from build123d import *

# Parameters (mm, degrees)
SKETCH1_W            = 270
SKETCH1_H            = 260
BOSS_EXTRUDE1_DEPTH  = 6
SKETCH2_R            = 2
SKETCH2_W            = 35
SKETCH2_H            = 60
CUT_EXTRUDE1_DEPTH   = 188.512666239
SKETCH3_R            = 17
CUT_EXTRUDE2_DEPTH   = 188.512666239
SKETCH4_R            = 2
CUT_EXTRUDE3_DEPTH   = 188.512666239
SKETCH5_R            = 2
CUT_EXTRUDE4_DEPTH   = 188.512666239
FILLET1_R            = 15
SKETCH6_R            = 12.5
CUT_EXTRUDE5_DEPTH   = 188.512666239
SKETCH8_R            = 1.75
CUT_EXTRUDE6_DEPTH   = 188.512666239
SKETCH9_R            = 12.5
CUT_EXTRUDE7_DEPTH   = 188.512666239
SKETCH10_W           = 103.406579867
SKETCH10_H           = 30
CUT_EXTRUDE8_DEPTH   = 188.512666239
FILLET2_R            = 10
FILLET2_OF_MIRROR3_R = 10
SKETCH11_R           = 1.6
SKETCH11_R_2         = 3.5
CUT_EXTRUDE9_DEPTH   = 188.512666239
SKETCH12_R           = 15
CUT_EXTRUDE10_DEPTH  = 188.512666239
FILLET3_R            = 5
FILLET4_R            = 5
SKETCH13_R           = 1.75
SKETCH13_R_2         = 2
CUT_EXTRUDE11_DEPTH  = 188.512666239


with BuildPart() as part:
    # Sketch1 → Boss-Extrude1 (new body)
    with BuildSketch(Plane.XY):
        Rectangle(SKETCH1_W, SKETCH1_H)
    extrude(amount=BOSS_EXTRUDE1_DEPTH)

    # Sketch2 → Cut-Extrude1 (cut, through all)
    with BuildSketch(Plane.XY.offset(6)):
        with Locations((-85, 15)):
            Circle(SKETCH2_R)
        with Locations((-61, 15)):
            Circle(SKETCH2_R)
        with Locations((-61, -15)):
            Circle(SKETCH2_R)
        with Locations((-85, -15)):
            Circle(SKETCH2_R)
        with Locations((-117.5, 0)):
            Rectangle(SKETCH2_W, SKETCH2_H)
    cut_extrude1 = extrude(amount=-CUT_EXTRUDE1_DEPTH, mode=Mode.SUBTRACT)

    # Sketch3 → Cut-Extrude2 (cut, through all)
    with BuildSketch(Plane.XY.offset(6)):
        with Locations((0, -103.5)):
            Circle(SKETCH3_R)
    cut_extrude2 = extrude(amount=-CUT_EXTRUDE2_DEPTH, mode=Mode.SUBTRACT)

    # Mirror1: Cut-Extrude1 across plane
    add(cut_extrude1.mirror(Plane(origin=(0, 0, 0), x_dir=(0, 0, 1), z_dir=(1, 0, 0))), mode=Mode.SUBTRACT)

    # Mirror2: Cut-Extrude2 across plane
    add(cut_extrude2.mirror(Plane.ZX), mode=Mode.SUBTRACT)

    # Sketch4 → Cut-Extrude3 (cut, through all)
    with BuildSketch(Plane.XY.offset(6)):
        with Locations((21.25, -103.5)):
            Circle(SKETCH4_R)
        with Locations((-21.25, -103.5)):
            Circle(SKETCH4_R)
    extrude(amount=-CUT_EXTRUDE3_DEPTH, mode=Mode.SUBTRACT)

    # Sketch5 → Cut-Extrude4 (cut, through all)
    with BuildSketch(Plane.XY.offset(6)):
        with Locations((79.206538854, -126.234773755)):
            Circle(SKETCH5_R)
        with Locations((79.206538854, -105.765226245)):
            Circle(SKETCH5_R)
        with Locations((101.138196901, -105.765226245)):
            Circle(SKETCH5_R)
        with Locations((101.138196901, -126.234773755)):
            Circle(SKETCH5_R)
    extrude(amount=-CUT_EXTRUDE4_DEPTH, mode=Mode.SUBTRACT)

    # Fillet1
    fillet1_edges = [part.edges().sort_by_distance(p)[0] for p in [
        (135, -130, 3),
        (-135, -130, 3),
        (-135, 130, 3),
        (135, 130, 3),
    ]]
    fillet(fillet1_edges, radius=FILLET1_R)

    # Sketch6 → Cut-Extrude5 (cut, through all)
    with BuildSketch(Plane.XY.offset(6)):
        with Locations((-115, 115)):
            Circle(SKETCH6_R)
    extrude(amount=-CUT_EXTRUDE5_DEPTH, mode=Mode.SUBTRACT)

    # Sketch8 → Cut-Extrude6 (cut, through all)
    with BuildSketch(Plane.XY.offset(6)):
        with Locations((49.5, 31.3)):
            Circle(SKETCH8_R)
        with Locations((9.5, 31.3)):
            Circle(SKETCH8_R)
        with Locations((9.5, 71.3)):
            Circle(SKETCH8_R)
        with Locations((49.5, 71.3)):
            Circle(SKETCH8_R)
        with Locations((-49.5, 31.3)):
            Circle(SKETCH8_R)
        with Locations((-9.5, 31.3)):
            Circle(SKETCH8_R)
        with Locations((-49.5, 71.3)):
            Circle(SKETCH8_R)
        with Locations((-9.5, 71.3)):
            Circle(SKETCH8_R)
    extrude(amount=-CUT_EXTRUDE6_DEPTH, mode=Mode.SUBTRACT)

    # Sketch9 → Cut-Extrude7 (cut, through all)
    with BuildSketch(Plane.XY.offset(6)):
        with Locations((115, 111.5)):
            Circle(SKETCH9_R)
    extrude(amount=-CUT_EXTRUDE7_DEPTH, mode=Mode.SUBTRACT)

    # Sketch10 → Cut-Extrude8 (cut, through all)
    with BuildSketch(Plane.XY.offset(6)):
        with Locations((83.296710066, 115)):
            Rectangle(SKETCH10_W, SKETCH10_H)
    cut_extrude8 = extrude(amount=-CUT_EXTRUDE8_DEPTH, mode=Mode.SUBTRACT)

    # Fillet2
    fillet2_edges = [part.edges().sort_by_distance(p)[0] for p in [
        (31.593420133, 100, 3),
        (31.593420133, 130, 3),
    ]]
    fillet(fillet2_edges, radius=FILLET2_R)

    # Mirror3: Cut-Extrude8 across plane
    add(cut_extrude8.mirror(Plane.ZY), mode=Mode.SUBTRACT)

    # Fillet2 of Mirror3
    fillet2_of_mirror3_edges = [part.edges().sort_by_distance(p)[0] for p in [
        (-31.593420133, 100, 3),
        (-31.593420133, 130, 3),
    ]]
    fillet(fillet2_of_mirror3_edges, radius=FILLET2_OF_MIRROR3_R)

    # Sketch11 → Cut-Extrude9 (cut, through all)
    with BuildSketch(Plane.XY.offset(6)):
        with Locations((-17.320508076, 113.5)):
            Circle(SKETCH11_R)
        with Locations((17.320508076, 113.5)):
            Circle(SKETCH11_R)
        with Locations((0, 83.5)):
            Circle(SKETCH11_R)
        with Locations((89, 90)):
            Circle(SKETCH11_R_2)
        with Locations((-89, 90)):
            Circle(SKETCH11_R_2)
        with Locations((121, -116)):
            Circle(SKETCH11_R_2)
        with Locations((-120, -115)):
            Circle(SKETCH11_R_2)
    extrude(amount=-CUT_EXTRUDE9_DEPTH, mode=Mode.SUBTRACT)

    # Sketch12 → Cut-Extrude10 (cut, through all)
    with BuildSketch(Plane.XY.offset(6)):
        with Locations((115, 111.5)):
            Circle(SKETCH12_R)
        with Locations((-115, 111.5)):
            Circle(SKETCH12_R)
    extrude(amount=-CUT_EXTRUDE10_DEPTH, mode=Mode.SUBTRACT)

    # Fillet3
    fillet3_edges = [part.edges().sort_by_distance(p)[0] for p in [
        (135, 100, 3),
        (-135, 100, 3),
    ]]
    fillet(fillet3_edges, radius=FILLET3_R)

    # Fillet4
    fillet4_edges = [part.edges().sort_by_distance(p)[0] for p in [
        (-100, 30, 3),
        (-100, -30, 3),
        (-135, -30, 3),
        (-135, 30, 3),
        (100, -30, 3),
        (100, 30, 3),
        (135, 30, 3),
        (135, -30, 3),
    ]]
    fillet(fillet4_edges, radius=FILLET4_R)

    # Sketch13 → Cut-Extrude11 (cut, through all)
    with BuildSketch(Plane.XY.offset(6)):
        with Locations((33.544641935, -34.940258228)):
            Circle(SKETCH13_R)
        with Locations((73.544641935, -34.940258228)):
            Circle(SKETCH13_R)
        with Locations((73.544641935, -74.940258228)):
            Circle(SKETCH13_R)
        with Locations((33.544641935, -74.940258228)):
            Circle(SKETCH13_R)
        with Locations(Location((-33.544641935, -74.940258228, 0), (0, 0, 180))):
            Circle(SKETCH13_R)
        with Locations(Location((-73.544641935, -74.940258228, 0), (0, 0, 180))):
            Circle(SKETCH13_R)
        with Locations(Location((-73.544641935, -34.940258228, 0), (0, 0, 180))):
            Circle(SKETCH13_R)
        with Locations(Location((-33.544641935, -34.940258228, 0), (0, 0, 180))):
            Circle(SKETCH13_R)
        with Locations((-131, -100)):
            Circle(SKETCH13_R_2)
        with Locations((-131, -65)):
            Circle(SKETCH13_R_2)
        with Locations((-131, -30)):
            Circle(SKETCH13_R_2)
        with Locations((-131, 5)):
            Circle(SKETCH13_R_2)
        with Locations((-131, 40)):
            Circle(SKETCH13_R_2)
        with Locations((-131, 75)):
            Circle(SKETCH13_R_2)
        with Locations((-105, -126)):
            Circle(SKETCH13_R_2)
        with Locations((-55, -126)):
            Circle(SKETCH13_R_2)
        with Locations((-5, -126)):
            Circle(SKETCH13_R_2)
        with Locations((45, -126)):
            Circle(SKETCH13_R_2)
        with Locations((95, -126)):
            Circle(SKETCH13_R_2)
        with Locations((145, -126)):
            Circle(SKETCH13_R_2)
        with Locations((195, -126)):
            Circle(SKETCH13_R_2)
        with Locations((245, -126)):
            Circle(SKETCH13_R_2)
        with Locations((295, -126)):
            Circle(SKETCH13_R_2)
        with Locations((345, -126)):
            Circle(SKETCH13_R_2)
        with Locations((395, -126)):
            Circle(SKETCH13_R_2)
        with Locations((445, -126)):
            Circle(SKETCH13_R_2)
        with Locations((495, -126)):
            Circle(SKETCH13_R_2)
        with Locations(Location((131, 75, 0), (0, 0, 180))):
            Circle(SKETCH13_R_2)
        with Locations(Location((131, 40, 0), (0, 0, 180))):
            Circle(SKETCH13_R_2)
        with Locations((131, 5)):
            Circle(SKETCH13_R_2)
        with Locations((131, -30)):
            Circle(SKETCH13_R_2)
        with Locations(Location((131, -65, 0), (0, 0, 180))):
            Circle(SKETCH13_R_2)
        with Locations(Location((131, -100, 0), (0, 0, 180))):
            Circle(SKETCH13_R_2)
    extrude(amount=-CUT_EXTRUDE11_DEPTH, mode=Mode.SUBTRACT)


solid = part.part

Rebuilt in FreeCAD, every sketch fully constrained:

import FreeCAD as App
import Part
import Sketcher

V = App.Vector


def edges_at(feature, points):
    """Names of the edges that pass closest to the given points."""
    edges = feature.Shape.Edges
    near = lambda p: min(range(len(edges)), key=lambda i: edges[i].distToShape(Part.Vertex(*p))[0])
    return sorted({f"Edge{near(p) + 1}" for p in points})

doc = App.newDocument("Part")
body = doc.addObject("PartDesign::Body", "Body")

# Sketch on XY plane
sketch1 = body.newObject("Sketcher::SketchObject", "Sketch")
sketch1.AttachmentSupport = (doc.getObject("XY_Plane"), [""])
sketch1.MapMode = "FlatFace"
sketch1.addGeometry([
    Part.LineSegment(V(-135, 130, 0), V(-135, -130, 0)),
    Part.LineSegment(V(-135, -130, 0), V(135, -130, 0)),
    Part.LineSegment(V(135, -130, 0), V(135, 130, 0)),
    Part.LineSegment(V(135, 130, 0), V(-135, 130, 0)),
], False)
sketch1.addConstraint([
    Sketcher.Constraint("Coincident", 0, 2, 1, 1),
    Sketcher.Constraint("Coincident", 1, 2, 2, 1),
    Sketcher.Constraint("Coincident", 2, 2, 3, 1),
    Sketcher.Constraint("Coincident", 3, 2, 0, 1),
    Sketcher.Constraint("Vertical", 0),
    Sketcher.Constraint("Horizontal", 1),
    Sketcher.Constraint("Vertical", 2),
    Sketcher.Constraint("Horizontal", 3),
    Sketcher.Constraint("Symmetric", 0, 2, 2, 2, -1, 1),
    Sketcher.Constraint("DistanceX", 1, 1, 1, 2, 270.0),
    Sketcher.Constraint("DistanceY", 0, 2, 0, 1, 260.0),
])
pad1 = body.newObject("PartDesign::Pad", "Pad")
pad1.Profile = sketch1
pad1.Length = 6

# Sketch on XY plane
sketch2 = body.newObject("Sketcher::SketchObject", "Sketch001")
sketch2.AttachmentSupport = (doc.getObject("XY_Plane"), [""])
sketch2.MapMode = "FlatFace"
sketch2.AttachmentOffset = App.Placement(V(0, 0, 6), App.Rotation())
sketch2.addGeometry([
    Part.Circle(V(-85, 15, 0), V(0, 0, 1), 2),  # 0
    Part.Circle(V(-61, 15, 0), V(0, 0, 1), 2),  # 1
    Part.Circle(V(-61, -15, 0), V(0, 0, 1), 2),  # 2
    Part.Circle(V(-85, -15, 0), V(0, 0, 1), 2),  # 3
    Part.LineSegment(V(-135, 30, 0), V(-135, -30, 0)),  # 4
    Part.LineSegment(V(-135, -30, 0), V(-100, -30, 0)),  # 5
    Part.LineSegment(V(-100, -30, 0), V(-100, 30, 0)),  # 6
    Part.LineSegment(V(-100, 30, 0), V(-135, 30, 0)),  # 7
], False)
sketch2.addConstraint([
    Sketcher.Constraint("Coincident", 4, 2, 5, 1),
    Sketcher.Constraint("Coincident", 5, 2, 6, 1),
    Sketcher.Constraint("Coincident", 6, 2, 7, 1),
    Sketcher.Constraint("Coincident", 7, 2, 4, 1),
    Sketcher.Constraint("Vertical", 4),
    Sketcher.Constraint("Horizontal", 5),
    Sketcher.Constraint("Vertical", 6),
    Sketcher.Constraint("Horizontal", 7),
    Sketcher.Constraint("Equal", 0, 1),
    Sketcher.Constraint("Equal", 1, 2),
    Sketcher.Constraint("Equal", 2, 3),
    Sketcher.Constraint("Symmetric", 1, 3, 2, 3, -1),
    Sketcher.Constraint("Symmetric", 0, 3, 3, 3, -1),
    Sketcher.Constraint("Horizontal", 0, 3, 1, 3),
    Sketcher.Constraint("Diameter", 0, 4.0),
    Sketcher.Constraint("DistanceX", 5, 1, 5, 2, 35.0),
    Sketcher.Constraint("DistanceY", 4, 2, 4, 1, 60.0),
    Sketcher.Constraint("DistanceX", 0, 3, -1, 1, 85.0),
    Sketcher.Constraint("DistanceY", -1, 1, 0, 3, 15.0),
    Sketcher.Constraint("DistanceX", 1, 3, -1, 1, 61.0),
    Sketcher.Constraint("DistanceX", 4, 2, -1, 1, 135.0),
    Sketcher.Constraint("DistanceY", 4, 2, -1, 1, 30.0),
])
pocket1 = body.newObject("PartDesign::Pocket", "Pocket")
pocket1.Profile = sketch2
pocket1.Type = "ThroughAll"

# Sketch on XY plane
sketch3 = body.newObject("Sketcher::SketchObject", "Sketch002")
sketch3.AttachmentSupport = (doc.getObject("XY_Plane"), [""])
sketch3.MapMode = "FlatFace"
sketch3.AttachmentOffset = App.Placement(V(0, 0, 6), App.Rotation())
sketch3.addGeometry(Part.Circle(V(0, -104, 0), V(0, 0, 1), 17), False)
sketch3.addConstraint([
    Sketcher.Constraint("PointOnObject", 0, 3, -2),
    Sketcher.Constraint("Diameter", 0, 34.0),
    Sketcher.Constraint("DistanceY", 0, 3, -1, 1, 103.5),
])
pocket2 = body.newObject("PartDesign::Pocket", "Pocket001")
pocket2.Profile = sketch3
pocket2.Type = "ThroughAll"
doc.recompute()

mirrored = body.newObject("PartDesign::Mirrored", "Mirrored")
mirrored.Originals = [pocket1]
mirrored.MirrorPlane = (doc.getObject("YZ_Plane"), [""])
body.Tip = mirrored
doc.recompute()

mirrored2 = body.newObject("PartDesign::Mirrored", "Mirrored001")
mirrored2.Originals = [pocket2]
mirrored2.MirrorPlane = (doc.getObject("XZ_Plane"), [""])
body.Tip = mirrored2

# Sketch on XY plane
sketch4 = body.newObject("Sketcher::SketchObject", "Sketch003")
sketch4.AttachmentSupport = (doc.getObject("XY_Plane"), [""])
sketch4.MapMode = "FlatFace"
sketch4.AttachmentOffset = App.Placement(V(0, 0, 6), App.Rotation())
sketch4.addGeometry([
    Part.Circle(V(21.2, -103.5, 0), V(0, 0, 1), 2),
    Part.Circle(V(-21.2, -103.5, 0), V(0, 0, 1), 2),
], False)
sketch4.addConstraint([
    Sketcher.Constraint("Equal", 0, 1),
    Sketcher.Constraint("Symmetric", 0, 3, 1, 3, -2),
    Sketcher.Constraint("Diameter", 0, 4.0),
    Sketcher.Constraint("DistanceY", 0, 3, -1, 1, 103.5),
    Sketcher.Constraint("DistanceX", 1, 3, 0, 3, 42.5),
])
pocket3 = body.newObject("PartDesign::Pocket", "Pocket002")
pocket3.Profile = sketch4
pocket3.Type = "ThroughAll"

# Sketch on XY plane
sketch5 = body.newObject("Sketcher::SketchObject", "Sketch004")
sketch5.AttachmentSupport = (doc.getObject("XY_Plane"), [""])
sketch5.MapMode = "FlatFace"
sketch5.AttachmentOffset = App.Placement(V(0, 0, 6), App.Rotation())
sketch5.addGeometry([
    Part.Circle(V(79.2, -126.2, 0), V(0, 0, 1), 2),
    Part.Circle(V(79.2, -105.8, 0), V(0, 0, 1), 2),
    Part.Circle(V(101.1, -105.8, 0), V(0, 0, 1), 2),
    Part.Circle(V(101.1, -126.2, 0), V(0, 0, 1), 2),
], False)
sketch5.addConstraint([
    Sketcher.Constraint("Equal", 0, 1),
    Sketcher.Constraint("Equal", 1, 2),
    Sketcher.Constraint("Equal", 2, 3),
    Sketcher.Constraint("Horizontal", 1, 3, 2, 3),
    Sketcher.Constraint("Horizontal", 0, 3, 3, 3),
    Sketcher.Constraint("Vertical", 0, 3, 1, 3),
    Sketcher.Constraint("Vertical", 2, 3, 3, 3),
    Sketcher.Constraint("Diameter", 0, 4.0),
    Sketcher.Constraint("DistanceX", -1, 1, 0, 3, 79.206539),
    Sketcher.Constraint("DistanceX", 1, 3, 2, 3, 21.931658),
    Sketcher.Constraint("DistanceY", 0, 3, -1, 1, 126.234774),
    Sketcher.Constraint("DistanceY", 1, 3, -1, 1, 105.765226),
])
pocket4 = body.newObject("PartDesign::Pocket", "Pocket003")
pocket4.Profile = sketch5
pocket4.Type = "ThroughAll"
doc.recompute()

fillet = body.newObject("PartDesign::Fillet", "Fillet")
fillet.Base = (pocket4, edges_at(pocket4, [
    (135, -130, 3),
    (-135, -130, 3),
    (-135, 130, 3),
    (135, 130, 3),
]))
fillet.Radius = 15

# Sketch on XY plane
sketch6 = body.newObject("Sketcher::SketchObject", "Sketch005")
sketch6.AttachmentSupport = (doc.getObject("XY_Plane"), [""])
sketch6.MapMode = "FlatFace"
sketch6.AttachmentOffset = App.Placement(V(0, 0, 6), App.Rotation())
sketch6.addGeometry(Part.Circle(V(-115, 115, 0), V(0, 0, 1), 12), False)
sketch6.addConstraint([
    Sketcher.Constraint("Diameter", 0, 25.0),
    Sketcher.Constraint("DistanceX", 0, 3, -1, 1, 115.0),
    Sketcher.Constraint("DistanceY", -1, 1, 0, 3, 115.0),
])
pocket5 = body.newObject("PartDesign::Pocket", "Pocket004")
pocket5.Profile = sketch6
pocket5.Type = "ThroughAll"

# Sketch on XY plane
sketch7 = body.newObject("Sketcher::SketchObject", "Sketch006")
sketch7.AttachmentSupport = (doc.getObject("XY_Plane"), [""])
sketch7.MapMode = "FlatFace"
sketch7.AttachmentOffset = App.Placement(V(0, 0, 6), App.Rotation())
sketch7.addGeometry([
    Part.Circle(V(49.5, 31.3, 0), V(0, 0, 1), 1.8),  # 0
    Part.Circle(V(9.5, 31.3, 0), V(0, 0, 1), 1.8),  # 1
    Part.Circle(V(9.5, 71.3, 0), V(0, 0, 1), 1.8),  # 2
    Part.Circle(V(49.5, 71.3, 0), V(0, 0, 1), 1.8),  # 3
    Part.Circle(V(-49.5, 31.3, 0), V(0, 0, 1), 1.8),  # 4
    Part.Circle(V(-9.5, 31.3, 0), V(0, 0, 1), 1.8),  # 5
    Part.Circle(V(-49.5, 71.3, 0), V(0, 0, 1), 1.8),  # 6
    Part.Circle(V(-9.5, 71.3, 0), V(0, 0, 1), 1.8),  # 7
], False)
sketch7.addConstraint([
    Sketcher.Constraint("Equal", 0, 1),
    Sketcher.Constraint("Equal", 1, 2),
    Sketcher.Constraint("Equal", 2, 3),
    Sketcher.Constraint("Equal", 3, 4),
    Sketcher.Constraint("Equal", 4, 5),
    Sketcher.Constraint("Equal", 5, 6),
    Sketcher.Constraint("Equal", 6, 7),
    Sketcher.Constraint("Symmetric", 0, 3, 4, 3, -2),
    Sketcher.Constraint("Symmetric", 1, 3, 5, 3, -2),
    Sketcher.Constraint("Symmetric", 3, 3, 6, 3, -2),
    Sketcher.Constraint("Symmetric", 2, 3, 7, 3, -2),
    Sketcher.Constraint("Horizontal", 0, 3, 1, 3),
    Sketcher.Constraint("Horizontal", 2, 3, 3, 3),
    Sketcher.Constraint("Vertical", 1, 3, 2, 3),
    Sketcher.Constraint("Vertical", 0, 3, 3, 3),
    Sketcher.Constraint("Diameter", 0, 3.5),
    Sketcher.Constraint("DistanceX", 1, 3, 0, 3, 40.0),
    Sketcher.Constraint("DistanceY", 1, 3, 2, 3, 40.0),
    Sketcher.Constraint("DistanceX", 4, 3, 1, 3, 59.0),
    Sketcher.Constraint("DistanceY", -1, 1, 0, 3, 31.3),
])
pocket6 = body.newObject("PartDesign::Pocket", "Pocket005")
pocket6.Profile = sketch7
pocket6.Type = "ThroughAll"

# Sketch on XY plane
sketch8 = body.newObject("Sketcher::SketchObject", "Sketch007")
sketch8.AttachmentSupport = (doc.getObject("XY_Plane"), [""])
sketch8.MapMode = "FlatFace"
sketch8.AttachmentOffset = App.Placement(V(0, 0, 6), App.Rotation())
sketch8.addGeometry(Part.Circle(V(115, 112, 0), V(0, 0, 1), 12), False)
sketch8.addConstraint([
    Sketcher.Constraint("Diameter", 0, 25.0),
    Sketcher.Constraint("DistanceX", -1, 1, 0, 3, 115.0),
    Sketcher.Constraint("DistanceY", -1, 1, 0, 3, 111.5),
])
pocket7 = body.newObject("PartDesign::Pocket", "Pocket006")
pocket7.Profile = sketch8
pocket7.Type = "ThroughAll"

# Sketch on XY plane
sketch9 = body.newObject("Sketcher::SketchObject", "Sketch008")
sketch9.AttachmentSupport = (doc.getObject("XY_Plane"), [""])
sketch9.MapMode = "FlatFace"
sketch9.AttachmentOffset = App.Placement(V(0, 0, 6), App.Rotation())
sketch9.addGeometry([
    Part.LineSegment(V(32, 130, 0), V(32, 100, 0)),
    Part.LineSegment(V(32, 100, 0), V(135, 100, 0)),
    Part.LineSegment(V(135, 100, 0), V(135, 130, 0)),
    Part.LineSegment(V(135, 130, 0), V(32, 130, 0)),
], False)
sketch9.addConstraint([
    Sketcher.Constraint("Coincident", 0, 2, 1, 1),
    Sketcher.Constraint("Coincident", 1, 2, 2, 1),
    Sketcher.Constraint("Coincident", 2, 2, 3, 1),
    Sketcher.Constraint("Coincident", 3, 2, 0, 1),
    Sketcher.Constraint("Vertical", 0),
    Sketcher.Constraint("Horizontal", 1),
    Sketcher.Constraint("Vertical", 2),
    Sketcher.Constraint("Horizontal", 3),
    Sketcher.Constraint("DistanceY", 0, 2, 0, 1, 30.0),
    Sketcher.Constraint("DistanceY", -1, 1, 0, 2, 100.0),
    Sketcher.Constraint("DistanceX", -1, 1, 1, 2, 135.0),
    Sketcher.Constraint("DistanceX", 1, 1, 1, 2, 103.40658),
])
pocket8 = body.newObject("PartDesign::Pocket", "Pocket007")
pocket8.Profile = sketch9
pocket8.Type = "ThroughAll"
doc.recompute()

fillet2 = body.newObject("PartDesign::Fillet", "Fillet001")
fillet2.Base = (pocket8, edges_at(pocket8, [(31.593, 100, 3), (31.593, 130, 3)]))
fillet2.Radius = 10
doc.recompute()

mirrored3 = body.newObject("PartDesign::Mirrored", "Mirrored002")
mirrored3.Originals = [pocket8]
mirrored3.MirrorPlane = (doc.getObject("YZ_Plane"), [""])
body.Tip = mirrored3
doc.recompute()

fillet3 = body.newObject("PartDesign::Fillet", "Fillet002")
fillet3.Base = (mirrored3, edges_at(mirrored3, [(-31.593, 100, 3), (-31.593, 130, 3)]))
fillet3.Radius = 10

# Sketch on XY plane
sketch10 = body.newObject("Sketcher::SketchObject", "Sketch009")
sketch10.AttachmentSupport = (doc.getObject("XY_Plane"), [""])
sketch10.MapMode = "FlatFace"
sketch10.AttachmentOffset = App.Placement(V(0, 0, 6), App.Rotation())
sketch10.addGeometry([
    Part.Circle(V(-17.3, 113.5, 0), V(0, 0, 1), 1.6),  # 0
    Part.Circle(V(17.3, 113.5, 0), V(0, 0, 1), 1.6),  # 1
    Part.Circle(V(0, 83.5, 0), V(0, 0, 1), 1.6),  # 2
    Part.Circle(V(89, 90, 0), V(0, 0, 1), 3.5),  # 3
    Part.Circle(V(-89, 90, 0), V(0, 0, 1), 3.5),  # 4
    Part.Circle(V(121, -116, 0), V(0, 0, 1), 3.5),  # 5
    Part.Circle(V(-120, -115, 0), V(0, 0, 1), 3.5),  # 6
], False)
sketch10.addConstraint([
    Sketcher.Constraint("Equal", 0, 1),
    Sketcher.Constraint("Equal", 1, 2),
    Sketcher.Constraint("Equal", 3, 4),
    Sketcher.Constraint("Equal", 4, 5),
    Sketcher.Constraint("Equal", 5, 6),
    Sketcher.Constraint("Symmetric", 0, 3, 1, 3, -2),
    Sketcher.Constraint("Symmetric", 3, 3, 4, 3, -2),
    Sketcher.Constraint("PointOnObject", 2, 3, -2),
    Sketcher.Constraint("Diameter", 3, 7.0),
    Sketcher.Constraint("Diameter", 0, 3.2),
    Sketcher.Constraint("DistanceX", -1, 1, 3, 3, 89.0),
    Sketcher.Constraint("DistanceY", -1, 1, 3, 3, 90.0),
    Sketcher.Constraint("DistanceX", -1, 1, 5, 3, 121.0),
    Sketcher.Constraint("DistanceY", 5, 3, -1, 1, 116.0),
    Sketcher.Constraint("DistanceX", 6, 3, -1, 1, 120.0),
    Sketcher.Constraint("DistanceY", 6, 3, -1, 1, 115.0),
    Sketcher.Constraint("DistanceY", 2, 3, 0, 3, 30.0),
    Sketcher.Constraint("DistanceY", -1, 1, 0, 3, 113.5),
    Sketcher.Constraint("DistanceX", 0, 3, -1, 1, 17.320508),
])
pocket9 = body.newObject("PartDesign::Pocket", "Pocket008")
pocket9.Profile = sketch10
pocket9.Type = "ThroughAll"

# Sketch on XY plane
sketch11 = body.newObject("Sketcher::SketchObject", "Sketch010")
sketch11.AttachmentSupport = (doc.getObject("XY_Plane"), [""])
sketch11.MapMode = "FlatFace"
sketch11.AttachmentOffset = App.Placement(V(0, 0, 6), App.Rotation())
sketch11.addGeometry([
    Part.Circle(V(115, 112, 0), V(0, 0, 1), 15),
    Part.Circle(V(-115, 112, 0), V(0, 0, 1), 15),
], False)
sketch11.addConstraint([
    Sketcher.Constraint("Equal", 0, 1),
    Sketcher.Constraint("Symmetric", 0, 3, 1, 3, -2),
    Sketcher.Constraint("Diameter", 0, 30.0),
    Sketcher.Constraint("DistanceX", -1, 1, 0, 3, 115.0),
    Sketcher.Constraint("DistanceY", -1, 1, 0, 3, 111.5),
])
pocket10 = body.newObject("PartDesign::Pocket", "Pocket009")
pocket10.Profile = sketch11
pocket10.Type = "ThroughAll"
doc.recompute()

fillet4 = body.newObject("PartDesign::Fillet", "Fillet003")
fillet4.Base = (pocket10, edges_at(pocket10, [(135, 100, 3), (-135, 100, 3)]))
fillet4.Radius = 5
doc.recompute()

fillet5 = body.newObject("PartDesign::Fillet", "Fillet004")
fillet5.Base = (fillet4, edges_at(fillet4, [
    (-100, 30, 3),
    (-100, -30, 3),
    (-135, -30, 3),
    (-135, 30, 3),
    (100, -30, 3),
    (100, 30, 3),
    (135, 30, 3),
    (135, -30, 3),
]))
fillet5.Radius = 5

# Sketch on XY plane
sketch12 = body.newObject("Sketcher::SketchObject", "Sketch011")
sketch12.AttachmentSupport = (doc.getObject("XY_Plane"), [""])
sketch12.MapMode = "FlatFace"
sketch12.AttachmentOffset = App.Placement(V(0, 0, 6), App.Rotation())
sketch12.addGeometry([
    Part.Circle(V(33.5, -34.9, 0), V(0, 0, 1), 1.8),  # 0
    Part.Circle(V(73.5, -34.9, 0), V(0, 0, 1), 1.8),  # 1
    Part.Circle(V(73.5, -74.9, 0), V(0, 0, 1), 1.8),  # 2
    Part.Circle(V(33.5, -74.9, 0), V(0, 0, 1), 1.8),  # 3
    Part.Circle(V(-33.5, -74.9, 0), V(0, 0, 1), 1.8),  # 4
    Part.Circle(V(-73.5, -74.9, 0), V(0, 0, 1), 1.8),  # 5
    Part.Circle(V(-73.5, -34.9, 0), V(0, 0, 1), 1.8),  # 6
    Part.Circle(V(-33.5, -34.9, 0), V(0, 0, 1), 1.8),  # 7
    Part.Circle(V(-131, -100, 0), V(0, 0, 1), 2),  # 8
    Part.Circle(V(-131, -65, 0), V(0, 0, 1), 2),  # 9
    Part.Circle(V(-131, -30, 0), V(0, 0, 1), 2),  # 10
    Part.Circle(V(-131, 5, 0), V(0, 0, 1), 2),  # 11
    Part.Circle(V(-131, 40, 0), V(0, 0, 1), 2),  # 12
    Part.Circle(V(-131, 75, 0), V(0, 0, 1), 2),  # 13
    Part.Circle(V(-105, -126, 0), V(0, 0, 1), 2),  # 14
    Part.Circle(V(-55, -126, 0), V(0, 0, 1), 2),  # 15
    Part.Circle(V(-5, -126, 0), V(0, 0, 1), 2),  # 16
    Part.Circle(V(45, -126, 0), V(0, 0, 1), 2),  # 17
    Part.Circle(V(95, -126, 0), V(0, 0, 1), 2),  # 18
    Part.Circle(V(145, -126, 0), V(0, 0, 1), 2),  # 19
    Part.Circle(V(195, -126, 0), V(0, 0, 1), 2),  # 20
    Part.Circle(V(245, -126, 0), V(0, 0, 1), 2),  # 21
    Part.Circle(V(295, -126, 0), V(0, 0, 1), 2),  # 22
    Part.Circle(V(345, -126, 0), V(0, 0, 1), 2),  # 23
    Part.Circle(V(395, -126, 0), V(0, 0, 1), 2),  # 24
    Part.Circle(V(445, -126, 0), V(0, 0, 1), 2),  # 25
    Part.Circle(V(495, -126, 0), V(0, 0, 1), 2),  # 26
    Part.Circle(V(131, 75, 0), V(0, 0, 1), 2),  # 27
    Part.Circle(V(131, 40, 0), V(0, 0, 1), 2),  # 28
    Part.Circle(V(131, 5, 0), V(0, 0, 1), 2),  # 29
    Part.Circle(V(131, -30, 0), V(0, 0, 1), 2),  # 30
    Part.Circle(V(131, -65, 0), V(0, 0, 1), 2),  # 31
    Part.Circle(V(131, -100, 0), V(0, 0, 1), 2),  # 32
], False)
sketch12.addConstraint([
    Sketcher.Constraint("Equal", 0, 1),
    Sketcher.Constraint("Equal", 1, 2),
    Sketcher.Constraint("Equal", 2, 3),
    Sketcher.Constraint("Equal", 3, 4),
    Sketcher.Constraint("Equal", 4, 5),
    Sketcher.Constraint("Equal", 5, 6),
    Sketcher.Constraint("Equal", 6, 7),
    Sketcher.Constraint("Equal", 8, 9),
    Sketcher.Constraint("Equal", 9, 10),
    Sketcher.Constraint("Equal", 10, 11),
    Sketcher.Constraint("Equal", 11, 12),
    Sketcher.Constraint("Equal", 12, 13),
    Sketcher.Constraint("Equal", 13, 14),
    Sketcher.Constraint("Equal", 14, 15),
    Sketcher.Constraint("Equal", 15, 16),
    Sketcher.Constraint("Equal", 16, 17),
    Sketcher.Constraint("Equal", 17, 18),
    Sketcher.Constraint("Equal", 18, 19),
    Sketcher.Constraint("Equal", 19, 20),
    Sketcher.Constraint("Equal", 20, 21),
    Sketcher.Constraint("Equal", 21, 22),
    Sketcher.Constraint("Equal", 22, 23),
    Sketcher.Constraint("Equal", 23, 24),
    Sketcher.Constraint("Equal", 24, 25),
    Sketcher.Constraint("Equal", 25, 26),
    Sketcher.Constraint("Equal", 26, 27),
    Sketcher.Constraint("Equal", 27, 28),
    Sketcher.Constraint("Equal", 28, 29),
    Sketcher.Constraint("Equal", 29, 30),
    Sketcher.Constraint("Equal", 30, 31),
    Sketcher.Constraint("Equal", 31, 32),
    Sketcher.Constraint("Symmetric", 3, 3, 4, 3, -2),
    Sketcher.Constraint("Symmetric", 2, 3, 5, 3, -2),
    Sketcher.Constraint("Symmetric", 1, 3, 6, 3, -2),
    Sketcher.Constraint("Symmetric", 0, 3, 7, 3, -2),
    Sketcher.Constraint("Symmetric", 13, 3, 27, 3, -2),
    Sketcher.Constraint("Symmetric", 12, 3, 28, 3, -2),
    Sketcher.Constraint("Symmetric", 11, 3, 29, 3, -2),
    Sketcher.Constraint("Symmetric", 10, 3, 30, 3, -2),
    Sketcher.Constraint("Symmetric", 9, 3, 31, 3, -2),
    Sketcher.Constraint("Symmetric", 8, 3, 32, 3, -2),
    Sketcher.Constraint("Horizontal", 0, 3, 1, 3),
    Sketcher.Constraint("Horizontal", 2, 3, 3, 3),
    Sketcher.Constraint("Horizontal", 14, 3, 15, 3),
    Sketcher.Constraint("Horizontal", 15, 3, 16, 3),
    Sketcher.Constraint("Horizontal", 16, 3, 17, 3),
    Sketcher.Constraint("Horizontal", 17, 3, 18, 3),
    Sketcher.Constraint("Horizontal", 18, 3, 19, 3),
    Sketcher.Constraint("Horizontal", 19, 3, 20, 3),
    Sketcher.Constraint("Horizontal", 20, 3, 21, 3),
    Sketcher.Constraint("Horizontal", 21, 3, 22, 3),
    Sketcher.Constraint("Horizontal", 22, 3, 23, 3),
    Sketcher.Constraint("Horizontal", 23, 3, 24, 3),
    Sketcher.Constraint("Horizontal", 24, 3, 25, 3),
    Sketcher.Constraint("Horizontal", 25, 3, 26, 3),
    Sketcher.Constraint("Vertical", 1, 3, 2, 3),
    Sketcher.Constraint("Vertical", 0, 3, 3, 3),
    Sketcher.Constraint("Vertical", 8, 3, 9, 3),
    Sketcher.Constraint("Vertical", 9, 3, 10, 3),
    Sketcher.Constraint("Vertical", 10, 3, 11, 3),
    Sketcher.Constraint("Vertical", 11, 3, 12, 3),
    Sketcher.Constraint("Vertical", 12, 3, 13, 3),
    Sketcher.Constraint("Diameter", 8, 4.0),
    Sketcher.Constraint("Diameter", 0, 3.5),
    Sketcher.Constraint("DistanceX", 8, 3, -1, 1, 131.0),
    Sketcher.Constraint("DistanceY", 8, 3, -1, 1, 100.0),
    Sketcher.Constraint("DistanceY", 9, 3, -1, 1, 65.0),
    Sketcher.Constraint("DistanceY", 10, 3, -1, 1, 30.0),
    Sketcher.Constraint("DistanceY", -1, 1, 11, 3, 5.0),
    Sketcher.Constraint("DistanceY", -1, 1, 12, 3, 40.0),
    Sketcher.Constraint("DistanceY", -1, 1, 13, 3, 75.0),
    Sketcher.Constraint("DistanceX", 14, 3, -1, 1, 105.0),
    Sketcher.Constraint("DistanceY", 14, 3, -1, 1, 126.0),
    Sketcher.Constraint("DistanceX", 15, 3, -1, 1, 55.0),
    Sketcher.Constraint("DistanceX", 16, 3, -1, 1, 5.0),
    Sketcher.Constraint("DistanceX", -1, 1, 17, 3, 45.0),
    Sketcher.Constraint("DistanceX", -1, 1, 18, 3, 95.0),
    Sketcher.Constraint("DistanceX", -1, 1, 19, 3, 145.0),
    Sketcher.Constraint("DistanceX", -1, 1, 20, 3, 195.0),
    Sketcher.Constraint("DistanceX", -1, 1, 21, 3, 245.0),
    Sketcher.Constraint("DistanceX", -1, 1, 22, 3, 295.0),
    Sketcher.Constraint("DistanceX", -1, 1, 23, 3, 345.0),
    Sketcher.Constraint("DistanceX", -1, 1, 24, 3, 395.0),
    Sketcher.Constraint("DistanceX", -1, 1, 25, 3, 445.0),
    Sketcher.Constraint("DistanceX", -1, 1, 26, 3, 495.0),
    Sketcher.Constraint("DistanceX", 0, 3, 1, 3, 40.0),
    Sketcher.Constraint("DistanceY", 2, 3, 1, 3, 40.0),
    Sketcher.Constraint("DistanceX", -1, 1, 0, 3, 33.544642),
    Sketcher.Constraint("DistanceY", 0, 3, -1, 1, 34.940258),
])
pocket11 = body.newObject("PartDesign::Pocket", "Pocket010")
pocket11.Profile = sketch12
pocket11.Type = "ThroughAll"

doc.recompute()
